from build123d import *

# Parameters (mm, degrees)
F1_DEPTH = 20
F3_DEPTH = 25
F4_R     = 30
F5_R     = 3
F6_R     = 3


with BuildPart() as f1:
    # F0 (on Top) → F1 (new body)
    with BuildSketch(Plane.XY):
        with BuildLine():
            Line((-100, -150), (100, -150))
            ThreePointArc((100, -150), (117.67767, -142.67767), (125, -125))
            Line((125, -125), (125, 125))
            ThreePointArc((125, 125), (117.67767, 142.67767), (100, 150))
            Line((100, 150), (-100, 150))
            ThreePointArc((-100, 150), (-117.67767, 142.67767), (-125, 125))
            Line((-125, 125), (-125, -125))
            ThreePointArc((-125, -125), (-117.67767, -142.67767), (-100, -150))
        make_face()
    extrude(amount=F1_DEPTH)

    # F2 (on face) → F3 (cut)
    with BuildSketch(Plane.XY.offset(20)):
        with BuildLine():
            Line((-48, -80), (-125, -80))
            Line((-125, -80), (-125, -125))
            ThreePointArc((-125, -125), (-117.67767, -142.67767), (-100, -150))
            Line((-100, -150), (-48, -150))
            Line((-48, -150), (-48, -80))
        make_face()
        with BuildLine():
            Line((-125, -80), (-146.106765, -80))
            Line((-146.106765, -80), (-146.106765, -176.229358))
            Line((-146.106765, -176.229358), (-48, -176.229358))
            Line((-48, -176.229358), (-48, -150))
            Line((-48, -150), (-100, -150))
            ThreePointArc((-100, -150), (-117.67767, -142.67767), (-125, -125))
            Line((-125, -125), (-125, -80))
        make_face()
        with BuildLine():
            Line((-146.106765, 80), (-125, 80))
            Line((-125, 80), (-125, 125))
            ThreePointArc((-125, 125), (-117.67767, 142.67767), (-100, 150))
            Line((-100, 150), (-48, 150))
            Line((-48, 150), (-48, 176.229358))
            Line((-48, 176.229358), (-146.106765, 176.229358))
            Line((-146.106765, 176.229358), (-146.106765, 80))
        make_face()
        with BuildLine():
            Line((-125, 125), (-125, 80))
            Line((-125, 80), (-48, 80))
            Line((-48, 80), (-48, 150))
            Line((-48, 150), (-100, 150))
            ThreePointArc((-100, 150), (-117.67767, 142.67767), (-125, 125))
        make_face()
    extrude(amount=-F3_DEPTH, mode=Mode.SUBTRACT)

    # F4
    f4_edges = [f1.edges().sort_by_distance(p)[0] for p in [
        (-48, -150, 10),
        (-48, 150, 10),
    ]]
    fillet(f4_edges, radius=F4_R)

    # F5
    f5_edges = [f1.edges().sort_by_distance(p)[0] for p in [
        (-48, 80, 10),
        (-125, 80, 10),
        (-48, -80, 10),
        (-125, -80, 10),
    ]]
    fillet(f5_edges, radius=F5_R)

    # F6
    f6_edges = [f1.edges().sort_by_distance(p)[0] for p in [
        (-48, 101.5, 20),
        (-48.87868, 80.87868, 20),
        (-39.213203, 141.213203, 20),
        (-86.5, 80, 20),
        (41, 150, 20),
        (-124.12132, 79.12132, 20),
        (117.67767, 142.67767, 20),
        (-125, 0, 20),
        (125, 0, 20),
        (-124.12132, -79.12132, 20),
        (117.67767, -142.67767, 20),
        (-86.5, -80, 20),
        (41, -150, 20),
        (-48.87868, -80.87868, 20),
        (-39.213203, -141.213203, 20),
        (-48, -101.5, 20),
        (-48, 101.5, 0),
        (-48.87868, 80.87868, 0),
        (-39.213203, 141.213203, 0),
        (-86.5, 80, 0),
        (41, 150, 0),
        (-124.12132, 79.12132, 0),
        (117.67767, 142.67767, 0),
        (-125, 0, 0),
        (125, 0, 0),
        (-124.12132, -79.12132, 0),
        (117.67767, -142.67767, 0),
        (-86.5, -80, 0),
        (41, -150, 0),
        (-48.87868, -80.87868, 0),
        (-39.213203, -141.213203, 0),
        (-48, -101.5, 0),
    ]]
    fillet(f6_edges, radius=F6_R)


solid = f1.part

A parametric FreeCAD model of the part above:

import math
import FreeCAD as App
import Part
import Sketcher

V = App.Vector


def edges_at(feature, points):
    """Names of the edges that pass closest to the given points."""
    edges = feature.Shape.Edges
    near = lambda p: min(range(len(edges)), key=lambda i: edges[i].distToShape(Part.Vertex(*p))[0])
    return sorted({f"Edge{near(p) + 1}" for p in points})


def add_polygon(sketch, points):
    """Adds a closed chain of lines whose ends are joined by coincident constraints."""
    first, n = sketch.GeometryCount, len(points)
    for a, b in zip(points, points[1:] + points[:1]):
        sketch.addGeometry(Part.LineSegment(App.Vector(*a, 0), App.Vector(*b, 0)), False)
    for i in range(n):
        sketch.addConstraint(Sketcher.Constraint("Coincident", first + i, 2, first + (i + 1) % n, 1))

doc = App.newDocument("Part")
params = doc.addObject("Spreadsheet::Sheet", "Params")
for row, (alias, value) in enumerate([
    ("sketch1_radius", "24.999998 mm"),
    ("sketch1_width", "200 mm"),
    ("sketch1_height", "250 mm"),
    ("pad1_length", "20 mm"),
    ("pocket1_length", "25 mm"),
    ("fillet_radius", "30 mm"),
    ("fillet2_radius", "3 mm"),
    ("fillet3_radius", "3 mm"),
], start=1):
    params.set(f"A{row}", alias)
    params.set(f"B{row}", "=" + value)
    params.setAlias(f"B{row}", alias)

body = doc.addObject("PartDesign::Body", "Body")

# Sketch on XY plane
sketch1 = body.newObject("Sketcher::SketchObject", "Sketch")
sketch1.AttachmentSupport = (doc.getObject("XY_Plane"), [""])
sketch1.MapMode = "FlatFace"
sketch1.addGeometry(Part.LineSegment(V(-100, -150, 0), V(100, -150, 0)), False)
sketch1.addGeometry(Part.ArcOfCircle(Part.Circle(V(100, -125, 0), V(0, 0, 1), 25), math.radians(-90), math.radians(0)), False)
sketch1.addGeometry(Part.LineSegment(V(125, -125, 0), V(125, 125, 0)), False)
sketch1.addGeometry(Part.ArcOfCircle(Part.Circle(V(100, 125, 0), V(0, 0, 1), 25), math.radians(0), math.radians(90)), False)
sketch1.addGeometry(Part.LineSegment(V(100, 150, 0), V(-100, 150, 0)), False)
sketch1.addGeometry(Part.ArcOfCircle(Part.Circle(V(-100, 125, 0), V(0, 0, 1), 25), math.radians(90), math.radians(180)), False)
sketch1.addGeometry(Part.LineSegment(V(-125, 125, 0), V(-125, -125, 0)), False)
sketch1.addGeometry(Part.ArcOfCircle(Part.Circle(V(-100, -125, 0), V(0, 0, 1), 25), math.radians(180), math.radians(270)), False)
sketch1.addConstraint(Sketcher.Constraint("Tangent", 0, 2, 1, 1))
sketch1.addConstraint(Sketcher.Constraint("Tangent", 1, 2, 2, 1))
sketch1.addConstraint(Sketcher.Constraint("Tangent", 2, 2, 3, 1))
sketch1.addConstraint(Sketcher.Constraint("Tangent", 3, 2, 4, 1))
sketch1.addConstraint(Sketcher.Constraint("Tangent", 4, 2, 5, 1))
sketch1.addConstraint(Sketcher.Constraint("Tangent", 5, 2, 6, 1))
sketch1.addConstraint(Sketcher.Constraint("Tangent", 6, 2, 7, 1))
sketch1.addConstraint(Sketcher.Constraint("Tangent", 7, 2, 0, 1))
sketch1.addConstraint(Sketcher.Constraint("Horizontal", 0))
sketch1.addConstraint(Sketcher.Constraint("Vertical", 2))
sketch1.addConstraint(Sketcher.Constraint("Horizontal", 4))
sketch1.addConstraint(Sketcher.Constraint("Vertical", 6))
sketch1.addConstraint(Sketcher.Constraint("Equal", 1, 3))
sketch1.addConstraint(Sketcher.Constraint("Equal", 3, 5))
sketch1.addConstraint(Sketcher.Constraint("Equal", 5, 7))
sketch1.addConstraint(Sketcher.Constraint("Symmetric", 1, 3, 5, 3, -1, 1))
sketch1.addConstraint(Sketcher.Constraint("Radius", 1, 24.999998))
sketch1.addConstraint(Sketcher.Constraint("DistanceX", 0, 1, 0, 2, 200.0))
sketch1.addConstraint(Sketcher.Constraint("DistanceY", 2, 1, 2, 2, 250.0))
sketch1.setExpression("Constraints[16]", "Params.sketch1_radius")
sketch1.setExpression("Constraints[17]", "Params.sketch1_width")
sketch1.setExpression("Constraints[18]", "Params.sketch1_height")
pad1 = body.newObject("PartDesign::Pad", "Pad")
pad1.Profile = sketch1
pad1.setExpression("Length", "Params.pad1_length")

# Sketch on XY plane
sketch2 = body.newObject("Sketcher::SketchObject", "Sketch001")
sketch2.AttachmentSupport = (doc.getObject("XY_Plane"), [""])
sketch2.MapMode = "FlatFace"
sketch2.AttachmentOffset = App.Placement(V(0, 0, 20), App.Rotation())
add_polygon(sketch2, [(-48, -80), (-146, -80), (-146, -176), (-48, -176)])  # lines 0-3
add_polygon(sketch2, [(-146, 80), (-48, 80), (-48, 176), (-146, 176)])  # lines 4-7
sketch2.addConstraint(Sketcher.Constraint("Horizontal", 0))
sketch2.addConstraint(Sketcher.Constraint("Vertical", 1))
sketch2.addConstraint(Sketcher.Constraint("Horizontal", 2))
sketch2.addConstraint(Sketcher.Constraint("Vertical", 3))
sketch2.addConstraint(Sketcher.Constraint("Horizontal", 4))
sketch2.addConstraint(Sketcher.Constraint("Vertical", 5))
sketch2.addConstraint(Sketcher.Constraint("Horizontal", 6))
sketch2.addConstraint(Sketcher.Constraint("Vertical", 7))
sketch2.addConstraint(Sketcher.Constraint("Symmetric", 3, 2, 4, 2, -1))
sketch2.addConstraint(Sketcher.Constraint("Symmetric", 1, 2, 6, 2, -1))
sketch2.addConstraint(Sketcher.Constraint("DistanceY", 0, 2, -1, 1, 80.0))
sketch2.addConstraint(Sketcher.Constraint("DistanceX", 2, 2, -1, 1, 48.0))
sketch2.addConstraint(Sketcher.Constraint("DistanceX", 0, 2, 0, 1, 98.106765))
sketch2.addConstraint(Sketcher.Constraint("DistanceY", 1, 2, 1, 1, 96.229358))
pocket1 = body.newObject("PartDesign::Pocket", "Pocket")
pocket1.Profile = sketch2
pocket1.setExpression("Length", "Params.pocket1_length")
doc.recompute()

fillet = body.newObject("PartDesign::Fillet", "Fillet")
fillet.Base = (pocket1, edges_at(pocket1, [(-48, -150, 10), (-48, 150, 10)]))
fillet.setExpression("Radius", "Params.fillet_radius")
doc.recompute()

fillet2 = body.newObject("PartDesign::Fillet", "Fillet001")
fillet2.Base = (fillet, edges_at(fillet, [
    (-48, 80, 10),
    (-125, 80, 10),
    (-48, -80, 10),
    (-125, -80, 10),
]))
fillet2.setExpression("Radius", "Params.fillet2_radius")
doc.recompute()

fillet3 = body.newObject("PartDesign::Fillet", "Fillet002")
fillet3.Base = (fillet2, edges_at(fillet2, [
    (-48, 101.5, 20),
    (-48.879, 80.879, 20),
    (-39.213, 141.213, 20),
    (-86.5, 80, 20),
    (41, 150, 20),
    (-124.121, 79.121, 20),
    (117.678, 142.678, 20),
    (-125, 0, 20),
    (125, 0, 20),
    (-124.121, -79.121, 20),
    (117.678, -142.678, 20),
    (-86.5, -80, 20),
    (41, -150, 20),
    (-48.879, -80.879, 20),
    (-39.213, -141.213, 20),
    (-48, -101.5, 20),
    (-48, 101.5, 0),
    (-48.879, 80.879, 0),
    (-39.213, 141.213, 0),
    (-86.5, 80, 0),
    (41, 150, 0),
    (-124.121, 79.121, 0),
    (117.678, 142.678, 0),
    (-125, 0, 0),
    (125, 0, 0),
    (-124.121, -79.121, 0),
    (117.678, -142.678, 0),
    (-86.5, -80, 0),
    (41, -150, 0),
    (-48.879, -80.879, 0),
    (-39.213, -141.213, 0),
    (-48, -101.5, 0),
]))
fillet3.setExpression("Radius", "Params.fillet3_radius")

doc.recompute()
